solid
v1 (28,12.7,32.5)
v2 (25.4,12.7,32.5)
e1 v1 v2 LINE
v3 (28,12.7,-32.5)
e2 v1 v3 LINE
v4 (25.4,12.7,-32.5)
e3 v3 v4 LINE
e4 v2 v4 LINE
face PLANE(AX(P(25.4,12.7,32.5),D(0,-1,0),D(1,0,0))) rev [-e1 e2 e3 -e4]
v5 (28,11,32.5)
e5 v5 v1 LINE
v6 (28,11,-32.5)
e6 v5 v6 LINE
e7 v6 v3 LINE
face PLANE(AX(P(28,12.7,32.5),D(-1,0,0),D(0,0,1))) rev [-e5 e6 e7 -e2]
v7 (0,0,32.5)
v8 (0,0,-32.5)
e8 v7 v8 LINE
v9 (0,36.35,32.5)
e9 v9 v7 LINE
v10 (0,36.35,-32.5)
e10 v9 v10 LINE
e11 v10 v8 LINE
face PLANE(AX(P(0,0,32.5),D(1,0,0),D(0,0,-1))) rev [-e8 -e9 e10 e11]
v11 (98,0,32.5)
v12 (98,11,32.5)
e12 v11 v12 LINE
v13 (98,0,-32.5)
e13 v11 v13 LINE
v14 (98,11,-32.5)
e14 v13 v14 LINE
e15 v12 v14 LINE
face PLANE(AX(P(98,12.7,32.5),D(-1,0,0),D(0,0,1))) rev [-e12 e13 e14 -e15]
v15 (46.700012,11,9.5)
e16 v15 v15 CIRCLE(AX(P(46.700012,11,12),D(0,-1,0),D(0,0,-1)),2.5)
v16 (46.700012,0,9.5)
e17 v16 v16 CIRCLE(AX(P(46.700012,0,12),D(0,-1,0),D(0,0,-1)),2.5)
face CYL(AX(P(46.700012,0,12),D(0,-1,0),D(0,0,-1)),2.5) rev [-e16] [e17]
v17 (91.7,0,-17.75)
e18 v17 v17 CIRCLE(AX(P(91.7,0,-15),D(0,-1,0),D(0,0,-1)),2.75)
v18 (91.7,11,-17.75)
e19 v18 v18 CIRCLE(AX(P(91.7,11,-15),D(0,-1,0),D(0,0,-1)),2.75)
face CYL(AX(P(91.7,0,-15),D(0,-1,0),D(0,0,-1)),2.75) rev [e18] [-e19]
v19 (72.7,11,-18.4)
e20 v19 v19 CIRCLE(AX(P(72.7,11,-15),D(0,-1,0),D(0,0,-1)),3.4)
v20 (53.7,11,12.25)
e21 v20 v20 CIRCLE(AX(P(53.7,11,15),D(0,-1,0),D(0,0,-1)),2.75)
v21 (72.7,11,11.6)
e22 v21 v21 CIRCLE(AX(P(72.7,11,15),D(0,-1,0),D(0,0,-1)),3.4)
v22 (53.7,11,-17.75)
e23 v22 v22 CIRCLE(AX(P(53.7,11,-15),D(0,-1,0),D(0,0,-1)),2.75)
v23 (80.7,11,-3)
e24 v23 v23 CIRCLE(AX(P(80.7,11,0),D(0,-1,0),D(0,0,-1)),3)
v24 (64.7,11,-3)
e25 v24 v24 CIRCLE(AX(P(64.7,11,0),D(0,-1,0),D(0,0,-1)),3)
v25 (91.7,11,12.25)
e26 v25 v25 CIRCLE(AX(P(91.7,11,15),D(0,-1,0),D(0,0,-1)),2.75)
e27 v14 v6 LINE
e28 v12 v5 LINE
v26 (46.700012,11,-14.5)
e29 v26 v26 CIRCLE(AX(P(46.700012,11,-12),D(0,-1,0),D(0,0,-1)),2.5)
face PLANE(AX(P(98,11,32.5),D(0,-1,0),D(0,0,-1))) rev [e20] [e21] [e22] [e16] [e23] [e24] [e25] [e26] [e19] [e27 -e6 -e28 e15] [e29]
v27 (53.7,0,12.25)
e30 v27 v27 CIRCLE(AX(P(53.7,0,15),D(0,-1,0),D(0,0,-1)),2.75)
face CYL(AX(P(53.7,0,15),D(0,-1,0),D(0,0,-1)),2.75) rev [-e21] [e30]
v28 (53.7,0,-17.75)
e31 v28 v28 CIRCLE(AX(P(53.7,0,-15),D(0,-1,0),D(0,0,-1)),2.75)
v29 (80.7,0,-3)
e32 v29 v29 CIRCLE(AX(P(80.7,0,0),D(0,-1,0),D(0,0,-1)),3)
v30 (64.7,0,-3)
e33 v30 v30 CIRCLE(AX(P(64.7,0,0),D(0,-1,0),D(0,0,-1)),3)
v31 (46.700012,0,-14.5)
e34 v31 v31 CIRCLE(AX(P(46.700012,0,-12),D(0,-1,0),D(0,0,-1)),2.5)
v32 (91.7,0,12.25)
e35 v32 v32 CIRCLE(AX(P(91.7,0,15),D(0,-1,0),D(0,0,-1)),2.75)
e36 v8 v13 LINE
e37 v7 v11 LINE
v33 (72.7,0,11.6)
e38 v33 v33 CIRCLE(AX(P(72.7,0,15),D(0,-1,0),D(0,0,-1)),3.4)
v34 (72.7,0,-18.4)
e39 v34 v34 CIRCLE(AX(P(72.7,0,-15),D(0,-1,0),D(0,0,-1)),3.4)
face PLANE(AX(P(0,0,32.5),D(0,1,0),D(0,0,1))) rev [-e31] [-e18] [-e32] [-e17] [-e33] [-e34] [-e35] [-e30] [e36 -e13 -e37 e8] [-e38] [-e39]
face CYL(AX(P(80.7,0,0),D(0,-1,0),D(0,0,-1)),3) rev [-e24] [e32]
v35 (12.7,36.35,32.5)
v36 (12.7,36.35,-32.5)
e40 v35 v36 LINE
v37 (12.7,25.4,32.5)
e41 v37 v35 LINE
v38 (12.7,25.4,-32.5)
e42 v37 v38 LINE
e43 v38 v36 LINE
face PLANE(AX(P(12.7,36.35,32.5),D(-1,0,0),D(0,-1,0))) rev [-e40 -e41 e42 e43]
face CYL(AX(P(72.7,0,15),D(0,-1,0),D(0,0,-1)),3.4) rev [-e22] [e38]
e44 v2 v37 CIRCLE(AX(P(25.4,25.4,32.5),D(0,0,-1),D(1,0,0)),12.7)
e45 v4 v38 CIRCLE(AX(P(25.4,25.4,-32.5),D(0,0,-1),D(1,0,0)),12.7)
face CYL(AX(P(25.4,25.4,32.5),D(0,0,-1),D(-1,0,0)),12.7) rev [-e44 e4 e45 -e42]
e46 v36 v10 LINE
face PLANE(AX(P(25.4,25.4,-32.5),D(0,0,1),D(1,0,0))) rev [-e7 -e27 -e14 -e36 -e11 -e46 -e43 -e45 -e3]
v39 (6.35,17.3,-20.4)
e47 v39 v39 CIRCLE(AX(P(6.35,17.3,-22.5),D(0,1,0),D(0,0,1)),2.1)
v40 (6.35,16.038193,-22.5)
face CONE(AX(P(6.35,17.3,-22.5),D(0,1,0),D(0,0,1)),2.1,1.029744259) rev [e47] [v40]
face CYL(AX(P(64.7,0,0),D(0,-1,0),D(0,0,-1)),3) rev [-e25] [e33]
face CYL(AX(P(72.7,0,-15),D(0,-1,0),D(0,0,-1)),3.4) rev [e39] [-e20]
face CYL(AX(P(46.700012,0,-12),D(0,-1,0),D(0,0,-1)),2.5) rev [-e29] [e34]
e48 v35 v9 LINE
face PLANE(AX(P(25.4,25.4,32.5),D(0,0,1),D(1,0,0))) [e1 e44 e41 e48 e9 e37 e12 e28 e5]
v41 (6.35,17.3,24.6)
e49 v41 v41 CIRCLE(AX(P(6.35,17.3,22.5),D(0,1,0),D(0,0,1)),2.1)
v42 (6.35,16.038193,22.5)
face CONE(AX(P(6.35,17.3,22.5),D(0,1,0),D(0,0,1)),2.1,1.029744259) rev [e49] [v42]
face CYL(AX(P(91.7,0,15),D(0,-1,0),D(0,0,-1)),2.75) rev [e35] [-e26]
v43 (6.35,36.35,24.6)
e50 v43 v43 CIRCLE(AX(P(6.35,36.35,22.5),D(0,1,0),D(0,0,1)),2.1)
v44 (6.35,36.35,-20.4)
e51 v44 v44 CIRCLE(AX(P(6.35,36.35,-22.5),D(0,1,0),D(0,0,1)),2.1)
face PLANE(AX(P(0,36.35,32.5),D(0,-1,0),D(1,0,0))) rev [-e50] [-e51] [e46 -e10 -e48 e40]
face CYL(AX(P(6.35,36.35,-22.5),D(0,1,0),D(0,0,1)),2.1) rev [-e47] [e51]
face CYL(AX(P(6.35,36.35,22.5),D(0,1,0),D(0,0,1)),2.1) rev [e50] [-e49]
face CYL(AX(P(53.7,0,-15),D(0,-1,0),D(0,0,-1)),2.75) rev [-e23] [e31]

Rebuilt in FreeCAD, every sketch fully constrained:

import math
import FreeCAD as App
import Part
import Sketcher
from FreeCAD import Vector


def add_polygon(sketch, points):
    """Adds a closed chain of lines whose ends are joined by coincident constraints."""
    first, n = sketch.GeometryCount, len(points)
    for a, b in zip(points, points[1:] + points[:1]):
        sketch.addGeometry(Part.LineSegment(App.Vector(*a, 0), App.Vector(*b, 0)), False)
    for i in range(n):
        sketch.addConstraint(Sketcher.Constraint("Coincident", first + i, 2, first + (i + 1) % n, 1))

doc = App.newDocument("Part")
params = doc.addObject("Spreadsheet::Sheet", "Params")
for row, (alias, value) in enumerate([
    ("sketch1_radius", "12.7 mm"),
    ("sketch1_width", "98 mm"),
    ("sketch1_width2", "72.6 mm"),
    ("sketch1_height", "10.95 mm"),
    ("pad1_length", "65 mm"),
    ("sketch2_width", "70 mm"),
    ("sketch2_height", "1.7 mm"),
    ("sketch3_diameter", "5.5 mm"),
    ("hole_diameter", "5.5 mm"),
    ("sketch4_diameter", "4.2 mm"),
    ("hole2_diameter", "4.2 mm"),
    ("hole2_depth", "19.05 mm"),
    ("sketch5_diameter", "5 mm"),
    ("hole3_diameter", "5 mm"),
    ("sketch6_diameter", "6.8 mm"),
    ("hole4_diameter", "6.8 mm"),
    ("sketch7_diameter", "6 mm"),
    ("hole5_diameter", "6 mm"),
], start=1):
    params.set(f"A{row}", alias)
    params.set(f"B{row}", "=" + value)
    params.setAlias(f"B{row}", alias)

body = doc.addObject("PartDesign::Body", "Body")

# Sketch on XY plane
sketch1 = doc.addObject("Sketcher::SketchObject", "Sketch")
body.addObject(sketch1)
sketch1.AttachmentSupport = (doc.XY_Plane, [""])
sketch1.MapMode = "FlatFace"
sketch1.addGeometry(Part.LineSegment(Vector(0, 0, 0), Vector(98, 0, 0)), False)
sketch1.addGeometry(Part.LineSegment(Vector(98, 0, 0), Vector(98, 13, 0)), False)
sketch1.addGeometry(Part.LineSegment(Vector(98, 13, 0), Vector(25, 13, 0)), False)
sketch1.addGeometry(Part.ArcOfCircle(Part.Circle(Vector(25, 25, 0), Vector(0, 0, 1), 13), math.radians(180), math.radians(270)), False)
sketch1.addGeometry(Part.LineSegment(Vector(13, 25, 0), Vector(13, 36, 0)), False)
sketch1.addGeometry(Part.LineSegment(Vector(13, 36, 0), Vector(0, 36, 0)), False)
sketch1.addGeometry(Part.LineSegment(Vector(0, 36, 0), Vector(0, 0, 0)), False)
sketch1.addConstraint(Sketcher.Constraint("Coincident", 0, 2, 1, 1))
sketch1.addConstraint(Sketcher.Constraint("Coincident", 1, 2, 2, 1))
sketch1.addConstraint(Sketcher.Constraint("Tangent", 2, 2, 3, 2))
sketch1.addConstraint(Sketcher.Constraint("Tangent", 3, 1, 4, 1))
sketch1.addConstraint(Sketcher.Constraint("Coincident", 4, 2, 5, 1))
sketch1.addConstraint(Sketcher.Constraint("Coincident", 5, 2, 6, 1))
sketch1.addConstraint(Sketcher.Constraint("Coincident", 6, 2, 0, 1))
sketch1.addConstraint(Sketcher.Constraint("Horizontal", 0))
sketch1.addConstraint(Sketcher.Constraint("Vertical", 1))
sketch1.addConstraint(Sketcher.Constraint("Horizontal", 2))
sketch1.addConstraint(Sketcher.Constraint("Vertical", 4))
sketch1.addConstraint(Sketcher.Constraint("Horizontal", 5))
sketch1.addConstraint(Sketcher.Constraint("Vertical", 6))
sketch1.addConstraint(Sketcher.Constraint("Coincident", 6, 2, -1, 1))
sketch1.addConstraint(Sketcher.Constraint("Equal", 5, 1))
sketch1.addConstraint(Sketcher.Constraint("Radius", 3, 12.7))
sketch1.addConstraint(Sketcher.Constraint("DistanceX", 0, 1, 0, 2, 98.0))
sketch1.addConstraint(Sketcher.Constraint("DistanceX", 2, 2, 2, 1, 72.6))
sketch1.addConstraint(Sketcher.Constraint("DistanceY", 4, 1, 4, 2, 10.95))
sketch1.setExpression("Constraints[15]", "Params.sketch1_radius")
sketch1.setExpression("Constraints[16]", "Params.sketch1_width")
sketch1.setExpression("Constraints[17]", "Params.sketch1_width2")
sketch1.setExpression("Constraints[18]", "Params.sketch1_height")
pad1 = doc.addObject("PartDesign::Pad", "Pad")
body.addObject(pad1)
pad1.Profile = sketch1
pad1.setExpression("Length", "Params.pad1_length")
pad1.Midplane = True

# Sketch on XY plane
sketch2 = doc.addObject("Sketcher::SketchObject", "Sketch001")
body.addObject(sketch2)
sketch2.AttachmentSupport = (doc.XY_Plane, [""])
sketch2.MapMode = "FlatFace"
sketch2.AttachmentOffset = App.Placement(Vector(0, 0, -32.5), App.Rotation())
add_polygon(sketch2, [(98, 12.7), (98, 11), (28, 11), (28, 12.7)])  # lines 0-3
sketch2.addConstraint(Sketcher.Constraint("Vertical", 0))
sketch2.addConstraint(Sketcher.Constraint("Horizontal", 1))
sketch2.addConstraint(Sketcher.Constraint("Vertical", 2))
sketch2.addConstraint(Sketcher.Constraint("Horizontal", 3))
sketch2.addConstraint(Sketcher.Constraint("DistanceX", 1, 2, 1, 1, 70.0))
sketch2.addConstraint(Sketcher.Constraint("DistanceY", 0, 2, 0, 1, 1.7))
sketch2.addConstraint(Sketcher.Constraint("DistanceX", -1, 1, 0, 2, 98.0))
sketch2.addConstraint(Sketcher.Constraint("DistanceY", -1, 1, 0, 2, 11.0))
sketch2.setExpression("Constraints[8]", "Params.sketch2_width")
sketch2.setExpression("Constraints[9]", "Params.sketch2_height")
pocket1 = doc.addObject("PartDesign::Pocket", "Pocket")
body.addObject(pocket1)
pocket1.Profile = sketch2
pocket1.Type = "ThroughAll"
pocket1.Reversed = True

# Sketch on XZ plane
sketch3 = doc.addObject("Sketcher::SketchObject", "Sketch002")
body.addObject(sketch3)
sketch3.AttachmentSupport = (doc.XZ_Plane, [""])
sketch3.MapMode = "FlatFace"
sketch3.addGeometry(Part.Circle(Vector(53.7, 15, 0), Vector(0, 0, 1), 2.8), False)
sketch3.addGeometry(Part.Circle(Vector(91.7, 15, 0), Vector(0, 0, 1), 2.8), False)
sketch3.addGeometry(Part.Circle(Vector(91.7, -15, 0), Vector(0, 0, 1), 2.8), False)
sketch3.addGeometry(Part.Circle(Vector(53.7, -15, 0), Vector(0, 0, 1), 2.8), False)
sketch3.addConstraint(Sketcher.Constraint("Equal", 0, 1))
sketch3.addConstraint(Sketcher.Constraint("Equal", 1, 2))
sketch3.addConstraint(Sketcher.Constraint("Equal", 2, 3))
sketch3.addConstraint(Sketcher.Constraint("Symmetric", 1, 3, 2, 3, -1))
sketch3.addConstraint(Sketcher.Constraint("Symmetric", 0, 3, 3, 3, -1))
sketch3.addConstraint(Sketcher.Constraint("Horizontal", 0, 3, 1, 3))
sketch3.addConstraint(Sketcher.Constraint("Diameter", 0, 5.5))
sketch3.addConstraint(Sketcher.Constraint("DistanceY", -1, 1, 0, 3, 15.0))
sketch3.addConstraint(Sketcher.Constraint("DistanceX", 0, 3, 1, 3, 38.0))
sketch3.addConstraint(Sketcher.Constraint("DistanceX", -1, 1, 0, 3, 53.7))
sketch3.setExpression("Constraints[6]", "Params.sketch3_diameter")
doc.recompute()
hole = doc.addObject("PartDesign::Hole", "Hole")
body.addObject(hole)
hole.Profile = sketch3
hole.ThreadType = "None"
hole.setExpression("Diameter", "Params.hole_diameter")
hole.DepthType = "ThroughAll"

# Sketch on XZ plane
sketch4 = doc.addObject("Sketcher::SketchObject", "Sketch003")
body.addObject(sketch4)
sketch4.AttachmentSupport = (doc.XZ_Plane, [""])
sketch4.MapMode = "FlatFace"
sketch4.AttachmentOffset = App.Placement(Vector(0, 0, -36.35), App.Rotation())
sketch4.addGeometry(Part.Circle(Vector(6.3, 22.5, 0), Vector(0, 0, 1), 2.1), False)
sketch4.addGeometry(Part.Circle(Vector(6.3, -22.5, 0), Vector(0, 0, 1), 2.1), False)
sketch4.addConstraint(Sketcher.Constraint("Equal", 0, 1))
sketch4.addConstraint(Sketcher.Constraint("Symmetric", 0, 3, 1, 3, -1))
sketch4.addConstraint(Sketcher.Constraint("Diameter", 0, 4.2))
sketch4.addConstraint(Sketcher.Constraint("DistanceY", 1, 3, 0, 3, 45.0))
sketch4.addConstraint(Sketcher.Constraint("DistanceX", -1, 1, 0, 3, 6.35))
sketch4.setExpression("Constraints[2]", "Params.sketch4_diameter")
doc.recompute()
hole2 = doc.addObject("PartDesign::Hole", "Hole001")
body.addObject(hole2)
hole2.Profile = sketch4
hole2.ThreadType = "None"
hole2.setExpression("Diameter", "Params.hole2_diameter")
hole2.DepthType = "Dimension"
hole2.setExpression("Depth", "Params.hole2_depth")
hole2.DrillPoint = "Angled"
hole2.DrillPointAngle = 118
hole2.Reversed = True

# Sketch on XZ plane
sketch5 = doc.addObject("Sketcher::SketchObject", "Sketch004")
body.addObject(sketch5)
sketch5.AttachmentSupport = (doc.XZ_Plane, [""])
sketch5.MapMode = "FlatFace"
sketch5.addGeometry(Part.Circle(Vector(46.7, 12, 0), Vector(0, 0, 1), 2.5), False)
sketch5.addGeometry(Part.Circle(Vector(46.7, -12, 0), Vector(0, 0, 1), 2.5), False)
sketch5.addConstraint(Sketcher.Constraint("Equal", 0, 1))
sketch5.addConstraint(Sketcher.Constraint("Symmetric", 0, 3, 1, 3, -1))
sketch5.addConstraint(Sketcher.Constraint("Diameter", 0, 5.0))
sketch5.addConstraint(Sketcher.Constraint("DistanceY", -1, 1, 0, 3, 12.0))
sketch5.addConstraint(Sketcher.Constraint("DistanceX", -1, 1, 0, 3, 46.700012))
sketch5.setExpression("Constraints[2]", "Params.sketch5_diameter")
doc.recompute()
hole3 = doc.addObject("PartDesign::Hole", "Hole002")
body.addObject(hole3)
hole3.Profile = sketch5
hole3.ThreadType = "None"
hole3.setExpression("Diameter", "Params.hole3_diameter")
hole3.DepthType = "ThroughAll"

# Sketch on XZ plane
sketch6 = doc.addObject("Sketcher::SketchObject", "Sketch005")
body.addObject(sketch6)
sketch6.AttachmentSupport = (doc.XZ_Plane, [""])
sketch6.MapMode = "FlatFace"
sketch6.addGeometry(Part.Circle(Vector(72.7, -15, 0), Vector(0, 0, 1), 3.4), False)
sketch6.addGeometry(Part.Circle(Vector(72.7, 15, 0), Vector(0, 0, 1), 3.4), False)
sketch6.addConstraint(Sketcher.Constraint("Equal", 0, 1))
sketch6.addConstraint(Sketcher.Constraint("Symmetric", 0, 3, 1, 3, -1))
sketch6.addConstraint(Sketcher.Constraint("Diameter", 0, 6.8))
sketch6.addConstraint(Sketcher.Constraint("DistanceY", 0, 3, -1, 1, 15.0))
sketch6.addConstraint(Sketcher.Constraint("DistanceX", -1, 1, 0, 3, 72.7))
sketch6.setExpression("Constraints[2]", "Params.sketch6_diameter")
doc.recompute()
hole4 = doc.addObject("PartDesign::Hole", "Hole003")
body.addObject(hole4)
hole4.Profile = sketch6
hole4.ThreadType = "None"
hole4.setExpression("Diameter", "Params.hole4_diameter")
hole4.DepthType = "ThroughAll"

# Sketch on XZ plane
sketch7 = doc.addObject("Sketcher::SketchObject", "Sketch006")
body.addObject(sketch7)
sketch7.AttachmentSupport = (doc.XZ_Plane, [""])
sketch7.MapMode = "FlatFace"
sketch7.addGeometry(Part.Circle(Vector(64.7, 0, 0), Vector(0, 0, 1), 3), False)
sketch7.addGeometry(Part.Circle(Vector(80.7, 0, 0), Vector(0, 0, 1), 3), False)
sketch7.addConstraint(Sketcher.Constraint("Equal", 0, 1))
sketch7.addConstraint(Sketcher.Constraint("PointOnObject", 0, 3, -1))
sketch7.addConstraint(Sketcher.Constraint("PointOnObject", 1, 3, -1))
sketch7.addConstraint(Sketcher.Constraint("Diameter", 0, 6.0))
sketch7.addConstraint(Sketcher.Constraint("DistanceX", 0, 3, 1, 3, 16.0))
sketch7.addConstraint(Sketcher.Constraint("DistanceX", -1, 1, 0, 3, 64.7))
sketch7.setExpression("Constraints[3]", "Params.sketch7_diameter")
doc.recompute()
hole5 = doc.addObject("PartDesign::Hole", "Hole004")
body.addObject(hole5)
hole5.Profile = sketch7
hole5.ThreadType = "None"
hole5.setExpression("Diameter", "Params.hole5_diameter")
hole5.DepthType = "ThroughAll"

doc.recompute()
